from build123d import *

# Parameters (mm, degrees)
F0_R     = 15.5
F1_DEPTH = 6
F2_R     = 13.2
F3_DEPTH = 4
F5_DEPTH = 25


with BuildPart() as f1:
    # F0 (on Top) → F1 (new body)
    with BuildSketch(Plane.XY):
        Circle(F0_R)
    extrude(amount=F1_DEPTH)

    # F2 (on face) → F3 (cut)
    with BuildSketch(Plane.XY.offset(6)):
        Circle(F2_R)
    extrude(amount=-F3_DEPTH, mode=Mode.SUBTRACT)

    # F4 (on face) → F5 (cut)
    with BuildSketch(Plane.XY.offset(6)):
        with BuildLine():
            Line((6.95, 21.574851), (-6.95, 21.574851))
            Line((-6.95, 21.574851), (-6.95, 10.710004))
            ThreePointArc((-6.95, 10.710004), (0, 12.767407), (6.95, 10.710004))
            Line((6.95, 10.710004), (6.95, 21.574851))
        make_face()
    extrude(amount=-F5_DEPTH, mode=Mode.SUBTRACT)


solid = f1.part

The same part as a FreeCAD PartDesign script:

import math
import FreeCAD as App
import Part
import Sketcher

doc = App.newDocument("Part")
params = doc.addObject("Spreadsheet::Sheet", "Params")
for row, (alias, value) in enumerate([
    ("sketch1_diameter", "31 mm"),
    ("pad1_length", "6 mm"),
    ("sketch2_diameter", "26.4 mm"),
    ("pocket1_length", "4 mm"),
    ("sketch3_width", "13.9 mm"),
    ("pocket2_length", "25 mm"),
], start=1):
    params.set(f"A{row}", alias)
    params.set(f"B{row}", "=" + value)
    params.setAlias(f"B{row}", alias)

body = doc.addObject("PartDesign::Body", "Body")

sketch1 = doc.addObject("Sketcher::SketchObject", "Sketch")
body.addObject(sketch1)
sketch1.AttachmentSupport = (doc.XY_Plane, [""])
sketch1.MapMode = "FlatFace"
sketch1.addGeometry(Part.Circle(App.Vector(0, 0, 0), App.Vector(0, 0, 1), 15.5), False)
sketch1.addConstraint([
    Sketcher.Constraint("Coincident", 0, 3, -1, 1),
    Sketcher.Constraint("Diameter", 0, 31.0),
])
sketch1.setExpression("Constraints[1]", "Params.sketch1_diameter")
pad1 = doc.addObject("PartDesign::Pad", "Pad")
body.addObject(pad1)
pad1.Profile = sketch1
pad1.setExpression("Length", "Params.pad1_length")

sketch2 = doc.addObject("Sketcher::SketchObject", "Sketch001")
body.addObject(sketch2)
sketch2.AttachmentSupport = (doc.XY_Plane, [""])
sketch2.MapMode = "FlatFace"
sketch2.AttachmentOffset = App.Placement(App.Vector(0, 0, 6), App.Rotation())
sketch2.addGeometry(Part.Circle(App.Vector(0, 0, 0), App.Vector(0, 0, 1), 13.2), False)
sketch2.addConstraint([
    Sketcher.Constraint("Coincident", 0, 3, -1, 1),
    Sketcher.Constraint("Diameter", 0, 26.4),
])
sketch2.setExpression("Constraints[1]", "Params.sketch2_diameter")
pocket1 = doc.addObject("PartDesign::Pocket", "Pocket")
body.addObject(pocket1)
pocket1.Profile = sketch2
pocket1.setExpression("Length", "Params.pocket1_length")

sketch3 = doc.addObject("Sketcher::SketchObject", "Sketch002")
body.addObject(sketch3)
sketch3.AttachmentSupport = (doc.XY_Plane, [""])
sketch3.MapMode = "FlatFace"
sketch3.AttachmentOffset = App.Placement(App.Vector(0, 0, 6), App.Rotation())
sketch3.addGeometry([
    Part.LineSegment(App.Vector(6.95, 21.574851, 0), App.Vector(-6.95, 21.574851, 0)),
    Part.LineSegment(App.Vector(-6.95, 21.574851, 0), App.Vector(-6.95, 10.710004, 0)),
    Part.ArcOfCircle(Part.Circle(App.Vector(0, -0.000001, 0), App.Vector(0, 0, 1), 12.767408), math.radians(57.019415), math.radians(122.980585)),
    Part.LineSegment(App.Vector(6.95, 10.710004, 0), App.Vector(6.95, 21.574851, 0)),
], False)
sketch3.addConstraint([
    Sketcher.Constraint("Coincident", 0, 2, 1, 1),
    Sketcher.Constraint("Coincident", 1, 2, 2, 2),
    Sketcher.Constraint("Coincident", 2, 1, 3, 1),
    Sketcher.Constraint("Coincident", 3, 2, 0, 1),
    Sketcher.Constraint("Horizontal", 0),
    Sketcher.Constraint("Vertical", 1),
    Sketcher.Constraint("Vertical", 3),
    Sketcher.Constraint("Coincident", 2, 3, -1, 1),
    Sketcher.Constraint("Horizontal", 1, 2, 2, 1),
    Sketcher.Constraint("DistanceX", 0, 2, 0, 1, 13.9),
    Sketcher.Constraint("Radius", 2, 12.767408),
    Sketcher.Constraint("DistanceY", 1, 2, 1, 1, 10.864847),
])
sketch3.setExpression("Constraints[9]", "Params.sketch3_width")
pocket2 = doc.addObject("PartDesign::Pocket", "Pocket001")
body.addObject(pocket2)
pocket2.Profile = sketch3
pocket2.setExpression("Length", "Params.pocket2_length")

doc.recompute()
